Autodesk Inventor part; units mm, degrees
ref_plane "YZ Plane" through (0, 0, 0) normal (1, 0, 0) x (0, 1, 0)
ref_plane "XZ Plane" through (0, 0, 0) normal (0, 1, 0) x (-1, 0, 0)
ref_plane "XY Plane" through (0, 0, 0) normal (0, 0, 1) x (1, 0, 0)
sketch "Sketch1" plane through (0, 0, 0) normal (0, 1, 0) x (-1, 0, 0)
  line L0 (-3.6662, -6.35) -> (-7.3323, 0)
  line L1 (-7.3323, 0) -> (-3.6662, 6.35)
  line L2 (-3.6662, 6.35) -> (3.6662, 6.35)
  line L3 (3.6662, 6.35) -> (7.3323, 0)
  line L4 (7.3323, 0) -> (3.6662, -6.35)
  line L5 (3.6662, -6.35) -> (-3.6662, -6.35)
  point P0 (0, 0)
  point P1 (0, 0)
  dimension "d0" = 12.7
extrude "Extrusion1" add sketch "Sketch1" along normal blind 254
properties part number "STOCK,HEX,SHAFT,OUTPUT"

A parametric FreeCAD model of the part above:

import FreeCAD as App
import Part
import Sketcher
from FreeCAD import Vector
Q = App.Units.Quantity


def add_polygon(sketch, points):
    """Adds a closed chain of lines whose ends are joined by coincident constraints."""
    first, n = sketch.GeometryCount, len(points)
    for a, b in zip(points, points[1:] + points[:1]):
        sketch.addGeometry(Part.LineSegment(App.Vector(*a, 0), App.Vector(*b, 0)), False)
    for i in range(n):
        sketch.addConstraint(Sketcher.Constraint("Coincident", first + i, 2, first + (i + 1) % n, 1))

doc = App.newDocument("Part")
body = doc.addObject("PartDesign::Body", "Body")

# Sketch on XZ plane
sketch1 = doc.addObject("Sketcher::SketchObject", "Sketch")
body.addObject(sketch1)
sketch1.AttachmentSupport = (doc.XZ_Plane, [""])
sketch1.MapMode = "FlatFace"
add_polygon(sketch1, [(7, 0), (4, -6), (-4, -6), (-7, 0), (-4, 6), (4, 6)])  # lines 0-5
sketch1.addConstraint(Sketcher.Constraint("Horizontal", 1))
sketch1.addConstraint(Sketcher.Constraint("Horizontal", 4))
sketch1.addConstraint(Sketcher.Constraint("Symmetric", 0, 2, 3, 2, -1, 1))
sketch1.addConstraint(Sketcher.Constraint("Symmetric", 2, 2, 5, 2, -1, 1))
sketch1.addConstraint(Sketcher.Constraint("PointOnObject", 2, 2, -1))
sketch1.addConstraint(Sketcher.Constraint("Parallel", 2, 5))
sketch1.addConstraint(Sketcher.Constraint("Vertical", 1, 2, 3, 2))
sketch1.addConstraint(Sketcher.Constraint("DistanceY", 1, 2, 3, 2, Q("0.5 in")))
sketch1.addConstraint(Sketcher.Constraint("Angle", 0, Q("-119.9995 deg")))
sketch1.addConstraint(Sketcher.Constraint("DistanceX", 2, 2, 0, 2, Q("0.433 in")))
pad1 = doc.addObject("PartDesign::Pad", "Pad")
body.addObject(pad1)
pad1.Profile = sketch1
pad1.Length = Q("10 in")
pad1.Reversed = True

doc.recompute()
